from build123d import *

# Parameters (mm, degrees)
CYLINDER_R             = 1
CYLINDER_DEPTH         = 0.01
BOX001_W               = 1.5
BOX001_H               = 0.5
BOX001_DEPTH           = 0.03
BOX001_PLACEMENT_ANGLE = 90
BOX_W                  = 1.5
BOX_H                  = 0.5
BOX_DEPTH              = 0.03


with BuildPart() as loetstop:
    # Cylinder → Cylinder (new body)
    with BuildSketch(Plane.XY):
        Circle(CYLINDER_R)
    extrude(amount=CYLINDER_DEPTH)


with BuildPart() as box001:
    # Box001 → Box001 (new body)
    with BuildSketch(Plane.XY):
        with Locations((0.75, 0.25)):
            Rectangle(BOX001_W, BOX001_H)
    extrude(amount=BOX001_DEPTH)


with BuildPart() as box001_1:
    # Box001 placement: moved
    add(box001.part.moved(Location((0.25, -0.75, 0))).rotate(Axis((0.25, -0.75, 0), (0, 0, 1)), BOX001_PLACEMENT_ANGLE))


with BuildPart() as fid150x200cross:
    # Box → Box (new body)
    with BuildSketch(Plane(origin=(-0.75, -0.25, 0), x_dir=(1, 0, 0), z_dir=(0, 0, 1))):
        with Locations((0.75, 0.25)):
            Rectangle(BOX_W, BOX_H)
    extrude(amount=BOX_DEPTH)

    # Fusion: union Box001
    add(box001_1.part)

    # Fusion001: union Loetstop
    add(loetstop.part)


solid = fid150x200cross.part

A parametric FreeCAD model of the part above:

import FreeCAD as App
import Part
import Sketcher

V = App.Vector
Q = App.Units.Quantity

doc = App.newDocument("Part")
body = doc.addObject("PartDesign::Body", "Body")

sketch1 = body.newObject("Sketcher::SketchObject", "Sketch")
sketch1.AttachmentSupport = (doc.getObject("XY_Plane"), [""])
sketch1.MapMode = "FlatFace"
sketch1.addGeometry(Part.Circle(V(0, 0, 0), V(0, 0, 1), 1), False)
sketch1.addConstraint([
    Sketcher.Constraint("Coincident", 0, 3, -1, 1),
    Sketcher.Constraint("Diameter", 0, Q("2 mm")),
])
pad1 = body.newObject("PartDesign::Pad", "Pad")
pad1.Profile = sketch1
pad1.Length = 0.01
body2 = doc.addObject("PartDesign::Body", "Body001")

sketch2 = body2.newObject("Sketcher::SketchObject", "Sketch001")
sketch2.AttachmentSupport = (doc.getObject("XY_Plane001"), [""])
sketch2.MapMode = "FlatFace"
sketch2.addGeometry([
    Part.LineSegment(V(0, 0.5, 0), V(0, 0, 0)),
    Part.LineSegment(V(0, 0, 0), V(1.5, 0, 0)),
    Part.LineSegment(V(1.5, 0, 0), V(1.5, 0.5, 0)),
    Part.LineSegment(V(1.5, 0.5, 0), V(0, 0.5, 0)),
], False)
sketch2.addConstraint([
    Sketcher.Constraint("Coincident", 0, 2, 1, 1),
    Sketcher.Constraint("Coincident", 1, 2, 2, 1),
    Sketcher.Constraint("Coincident", 2, 2, 3, 1),
    Sketcher.Constraint("Coincident", 3, 2, 0, 1),
    Sketcher.Constraint("Vertical", 0),
    Sketcher.Constraint("Horizontal", 1),
    Sketcher.Constraint("Vertical", 2),
    Sketcher.Constraint("Horizontal", 3),
    Sketcher.Constraint("Coincident", 0, 2, -1, 1),
    Sketcher.Constraint("DistanceX", 1, 1, 1, 2, Q("1.5 mm")),
    Sketcher.Constraint("DistanceY", 0, 2, 0, 1, Q("0.5 mm")),
])
pad2 = body2.newObject("PartDesign::Pad", "Pad001")
pad2.Profile = sketch2
pad2.Length = 0.03
body3 = doc.addObject("PartDesign::Body", "Body002")
doc.recompute()

body2.Placement = App.Placement(V(0.25, -0.75, 0), App.Rotation(V(0, 0, 1), 90))
boolean = body3.newObject("PartDesign::Boolean", "Boolean")
boolean.Type = "Fuse"
boolean.addObjects([body2])
body4 = doc.addObject("PartDesign::Body", "Body003")

sketch3 = body4.newObject("Sketcher::SketchObject", "Sketch002")
sketch3.AttachmentSupport = (doc.getObject("XY_Plane003"), [""])
sketch3.MapMode = "FlatFace"
sketch3.addGeometry([
    Part.LineSegment(V(-0.8, 0.2, 0), V(-0.8, -0.2, 0)),
    Part.LineSegment(V(-0.8, -0.2, 0), V(0.8, -0.2, 0)),
    Part.LineSegment(V(0.8, -0.2, 0), V(0.8, 0.2, 0)),
    Part.LineSegment(V(0.8, 0.2, 0), V(-0.8, 0.2, 0)),
], False)
sketch3.addConstraint([
    Sketcher.Constraint("Coincident", 0, 2, 1, 1),
    Sketcher.Constraint("Coincident", 1, 2, 2, 1),
    Sketcher.Constraint("Coincident", 2, 2, 3, 1),
    Sketcher.Constraint("Coincident", 3, 2, 0, 1),
    Sketcher.Constraint("Vertical", 0),
    Sketcher.Constraint("Horizontal", 1),
    Sketcher.Constraint("Vertical", 2),
    Sketcher.Constraint("Horizontal", 3),
    Sketcher.Constraint("Symmetric", 0, 2, 2, 2, -1, 1),
    Sketcher.Constraint("DistanceX", 1, 1, 1, 2, Q("1.5 mm")),
    Sketcher.Constraint("DistanceY", 0, 2, 0, 1, Q("0.5 mm")),
])
pad3 = body4.newObject("PartDesign::Pad", "Pad002")
pad3.Profile = sketch3
pad3.Length = 0.03
doc.recompute()

boolean2 = body4.newObject("PartDesign::Boolean", "Boolean001")
boolean2.Type = "Fuse"
boolean2.addObjects([body3])
doc.recompute()

boolean3 = body4.newObject("PartDesign::Boolean", "Boolean002")
boolean3.Type = "Fuse"
boolean3.addObjects([body])

doc.recompute()
